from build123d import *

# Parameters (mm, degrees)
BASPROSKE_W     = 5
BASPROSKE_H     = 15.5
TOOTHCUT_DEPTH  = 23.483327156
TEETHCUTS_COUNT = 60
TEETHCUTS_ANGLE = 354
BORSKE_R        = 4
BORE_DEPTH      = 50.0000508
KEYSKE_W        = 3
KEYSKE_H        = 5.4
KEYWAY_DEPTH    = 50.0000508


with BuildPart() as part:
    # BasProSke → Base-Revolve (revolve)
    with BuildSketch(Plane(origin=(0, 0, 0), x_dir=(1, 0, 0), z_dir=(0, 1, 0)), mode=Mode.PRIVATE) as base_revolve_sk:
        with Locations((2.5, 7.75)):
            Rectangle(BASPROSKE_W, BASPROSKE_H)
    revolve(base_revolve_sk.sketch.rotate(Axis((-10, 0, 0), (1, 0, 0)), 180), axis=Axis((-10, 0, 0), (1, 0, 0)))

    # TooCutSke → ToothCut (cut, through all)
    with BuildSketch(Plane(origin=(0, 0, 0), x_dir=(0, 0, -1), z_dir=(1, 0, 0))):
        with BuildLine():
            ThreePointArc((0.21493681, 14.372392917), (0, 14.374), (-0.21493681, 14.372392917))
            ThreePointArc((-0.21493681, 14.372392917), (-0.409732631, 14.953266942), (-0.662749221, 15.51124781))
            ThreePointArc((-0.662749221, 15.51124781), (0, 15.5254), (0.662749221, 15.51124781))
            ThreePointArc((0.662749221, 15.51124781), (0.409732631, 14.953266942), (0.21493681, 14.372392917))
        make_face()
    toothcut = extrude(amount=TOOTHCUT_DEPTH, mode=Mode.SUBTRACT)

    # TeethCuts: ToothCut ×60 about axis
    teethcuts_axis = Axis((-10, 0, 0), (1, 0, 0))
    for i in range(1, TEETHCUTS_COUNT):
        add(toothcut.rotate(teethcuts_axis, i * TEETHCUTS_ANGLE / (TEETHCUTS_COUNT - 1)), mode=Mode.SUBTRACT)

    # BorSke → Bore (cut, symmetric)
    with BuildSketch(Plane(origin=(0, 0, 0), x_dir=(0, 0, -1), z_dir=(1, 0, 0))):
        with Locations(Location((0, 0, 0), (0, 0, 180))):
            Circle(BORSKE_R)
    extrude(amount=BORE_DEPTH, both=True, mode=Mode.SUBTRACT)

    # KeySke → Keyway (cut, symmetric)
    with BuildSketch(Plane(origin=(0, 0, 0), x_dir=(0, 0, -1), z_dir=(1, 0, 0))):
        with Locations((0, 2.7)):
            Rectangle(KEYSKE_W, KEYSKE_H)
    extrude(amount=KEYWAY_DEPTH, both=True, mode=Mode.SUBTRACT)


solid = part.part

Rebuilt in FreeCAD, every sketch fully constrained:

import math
import FreeCAD as App
import Part
import Sketcher

doc = App.newDocument("Part")
body = doc.addObject("PartDesign::Body", "Body")

sketch1 = body.newObject("Sketcher::SketchObject", "Sketch")
sketch1.AttachmentSupport = (doc.getObject("XZ_Plane"), [""])
sketch1.MapMode = "FlatFace"
sketch1.addGeometry(Part.LineSegment(App.Vector(0, -16, 0), App.Vector(0, 0, 0)), False)
sketch1.addGeometry(Part.LineSegment(App.Vector(0, 0, 0), App.Vector(5, 0, 0)), False)
sketch1.addGeometry(Part.LineSegment(App.Vector(5, 0, 0), App.Vector(5, -16, 0)), False)
sketch1.addGeometry(Part.LineSegment(App.Vector(5, -16, 0), App.Vector(0, -16, 0)), False)
sketch1.addConstraint(Sketcher.Constraint("Coincident", 0, 2, 1, 1))
sketch1.addConstraint(Sketcher.Constraint("Coincident", 1, 2, 2, 1))
sketch1.addConstraint(Sketcher.Constraint("Coincident", 2, 2, 3, 1))
sketch1.addConstraint(Sketcher.Constraint("Coincident", 3, 2, 0, 1))
sketch1.addConstraint(Sketcher.Constraint("Vertical", 0))
sketch1.addConstraint(Sketcher.Constraint("Horizontal", 1))
sketch1.addConstraint(Sketcher.Constraint("Vertical", 2))
sketch1.addConstraint(Sketcher.Constraint("Horizontal", 3))
sketch1.addConstraint(Sketcher.Constraint("Coincident", 0, 2, -1, 1))
sketch1.addConstraint(Sketcher.Constraint("DistanceX", 1, 1, 1, 2, 5.0))
sketch1.addConstraint(Sketcher.Constraint("DistanceY", 0, 1, 0, 2, 15.5))
revolution = body.newObject("PartDesign::Revolution", "Revolution")
revolution.Profile = sketch1
revolution.ReferenceAxis = (sketch1, ["H_Axis"])
revolution.Angle = 360

sketch2 = body.newObject("Sketcher::SketchObject", "Sketch001")
sketch2.AttachmentSupport = (doc.getObject("YZ_Plane"), [""])
sketch2.MapMode = "FlatFace"
sketch2.addGeometry(Part.ArcOfCircle(Part.Circle(App.Vector(0, 0, 0), App.Vector(0, 0, 1), 14.37), math.radians(-0.86), math.radians(0.86)), False)
sketch2.addGeometry(Part.ArcOfCircle(Part.Circle(App.Vector(12.76, -5.99, 0), App.Vector(0, 0, 1), 6), math.radians(62.68), math.radians(74.39)), False)
sketch2.addGeometry(Part.ArcOfCircle(Part.Circle(App.Vector(0, 0, 0), App.Vector(0, 0, 1), 15.53), math.radians(-2.45), math.radians(2.45)), False)
sketch2.addGeometry(Part.ArcOfCircle(Part.Circle(App.Vector(12.76, 5.99, 0), App.Vector(0, 0, 1), 6), math.radians(-74.39), math.radians(-62.68)), False)
sketch2.addConstraint(Sketcher.Constraint("Coincident", 0, 1, 1, 2))
sketch2.addConstraint(Sketcher.Constraint("Coincident", 1, 1, 2, 1))
sketch2.addConstraint(Sketcher.Constraint("Coincident", 2, 2, 3, 2))
sketch2.addConstraint(Sketcher.Constraint("Coincident", 3, 1, 0, 2))
sketch2.addConstraint(Sketcher.Constraint("Coincident", 0, 3, -1, 1))
sketch2.addConstraint(Sketcher.Constraint("Coincident", 2, 3, -1, 1))
sketch2.addConstraint(Sketcher.Constraint("Equal", 1, 3))
sketch2.addConstraint(Sketcher.Constraint("Symmetric", 1, 3, 3, 3, -1))
sketch2.addConstraint(Sketcher.Constraint("Radius", 1, 6.0))
sketch2.addConstraint(Sketcher.Constraint("Radius", 2, 15.5254))
sketch2.addConstraint(Sketcher.Constraint("Radius", 0, 14.373998))
sketch2.addConstraint(Sketcher.Constraint("DistanceY", 1, 1, 2, 2, 1.325498))
sketch2.addConstraint(Sketcher.Constraint("DistanceX", 0, 3, 1, 3, 12.75763))
pocket1 = body.newObject("PartDesign::Pocket", "Pocket")
pocket1.Profile = sketch2
pocket1.Type = "ThroughAll"
pocket1.Reversed = True
doc.recompute()

polarpattern = body.newObject("PartDesign::PolarPattern", "PolarPattern")
polarpattern.Originals = [pocket1]
polarpattern.Axis = (doc.getObject("X_Axis"), [""])
polarpattern.Angle = 360
polarpattern.Occurrences = 60
body.Tip = polarpattern

sketch3 = body.newObject("Sketcher::SketchObject", "Sketch002")
sketch3.AttachmentSupport = (doc.getObject("YZ_Plane"), [""])
sketch3.MapMode = "FlatFace"
sketch3.addGeometry(Part.Circle(App.Vector(0, 0, 0), App.Vector(0, 0, 1), 4), False)
sketch3.addConstraint(Sketcher.Constraint("Coincident", 0, 3, -1, 1))
sketch3.addConstraint(Sketcher.Constraint("Diameter", 0, 8.0))
pocket2 = body.newObject("PartDesign::Pocket", "Pocket001")
pocket2.Profile = sketch3
pocket2.Length = 100.000102
pocket2.Midplane = True

sketch4 = body.newObject("Sketcher::SketchObject", "Sketch003")
sketch4.AttachmentSupport = (doc.getObject("YZ_Plane"), [""])
sketch4.MapMode = "FlatFace"
sketch4.addGeometry(Part.LineSegment(App.Vector(5.4, 1.5, 0), App.Vector(0, 1.5, 0)), False)
sketch4.addGeometry(Part.LineSegment(App.Vector(0, 1.5, 0), App.Vector(0, -1.5, 0)), False)
sketch4.addGeometry(Part.LineSegment(App.Vector(0, -1.5, 0), App.Vector(5.4, -1.5, 0)), False)
sketch4.addGeometry(Part.LineSegment(App.Vector(5.4, -1.5, 0), App.Vector(5.4, 1.5, 0)), False)
sketch4.addConstraint(Sketcher.Constraint("Coincident", 0, 2, 1, 1))
sketch4.addConstraint(Sketcher.Constraint("Coincident", 1, 2, 2, 1))
sketch4.addConstraint(Sketcher.Constraint("Coincident", 2, 2, 3, 1))
sketch4.addConstraint(Sketcher.Constraint("Coincident", 3, 2, 0, 1))
sketch4.addConstraint(Sketcher.Constraint("Horizontal", 0))
sketch4.addConstraint(Sketcher.Constraint("Vertical", 1))
sketch4.addConstraint(Sketcher.Constraint("Horizontal", 2))
sketch4.addConstraint(Sketcher.Constraint("Vertical", 3))
sketch4.addConstraint(Sketcher.Constraint("Symmetric", 0, 2, 1, 2, -1, 1))
sketch4.addConstraint(Sketcher.Constraint("DistanceY", 1, 2, 1, 1, 3.0))
sketch4.addConstraint(Sketcher.Constraint("DistanceX", 0, 2, 0, 1, 5.4))
pocket3 = body.newObject("PartDesign::Pocket", "Pocket002")
pocket3.Profile = sketch4
pocket3.Length = 100.000102
pocket3.Midplane = True

doc.recompute()
